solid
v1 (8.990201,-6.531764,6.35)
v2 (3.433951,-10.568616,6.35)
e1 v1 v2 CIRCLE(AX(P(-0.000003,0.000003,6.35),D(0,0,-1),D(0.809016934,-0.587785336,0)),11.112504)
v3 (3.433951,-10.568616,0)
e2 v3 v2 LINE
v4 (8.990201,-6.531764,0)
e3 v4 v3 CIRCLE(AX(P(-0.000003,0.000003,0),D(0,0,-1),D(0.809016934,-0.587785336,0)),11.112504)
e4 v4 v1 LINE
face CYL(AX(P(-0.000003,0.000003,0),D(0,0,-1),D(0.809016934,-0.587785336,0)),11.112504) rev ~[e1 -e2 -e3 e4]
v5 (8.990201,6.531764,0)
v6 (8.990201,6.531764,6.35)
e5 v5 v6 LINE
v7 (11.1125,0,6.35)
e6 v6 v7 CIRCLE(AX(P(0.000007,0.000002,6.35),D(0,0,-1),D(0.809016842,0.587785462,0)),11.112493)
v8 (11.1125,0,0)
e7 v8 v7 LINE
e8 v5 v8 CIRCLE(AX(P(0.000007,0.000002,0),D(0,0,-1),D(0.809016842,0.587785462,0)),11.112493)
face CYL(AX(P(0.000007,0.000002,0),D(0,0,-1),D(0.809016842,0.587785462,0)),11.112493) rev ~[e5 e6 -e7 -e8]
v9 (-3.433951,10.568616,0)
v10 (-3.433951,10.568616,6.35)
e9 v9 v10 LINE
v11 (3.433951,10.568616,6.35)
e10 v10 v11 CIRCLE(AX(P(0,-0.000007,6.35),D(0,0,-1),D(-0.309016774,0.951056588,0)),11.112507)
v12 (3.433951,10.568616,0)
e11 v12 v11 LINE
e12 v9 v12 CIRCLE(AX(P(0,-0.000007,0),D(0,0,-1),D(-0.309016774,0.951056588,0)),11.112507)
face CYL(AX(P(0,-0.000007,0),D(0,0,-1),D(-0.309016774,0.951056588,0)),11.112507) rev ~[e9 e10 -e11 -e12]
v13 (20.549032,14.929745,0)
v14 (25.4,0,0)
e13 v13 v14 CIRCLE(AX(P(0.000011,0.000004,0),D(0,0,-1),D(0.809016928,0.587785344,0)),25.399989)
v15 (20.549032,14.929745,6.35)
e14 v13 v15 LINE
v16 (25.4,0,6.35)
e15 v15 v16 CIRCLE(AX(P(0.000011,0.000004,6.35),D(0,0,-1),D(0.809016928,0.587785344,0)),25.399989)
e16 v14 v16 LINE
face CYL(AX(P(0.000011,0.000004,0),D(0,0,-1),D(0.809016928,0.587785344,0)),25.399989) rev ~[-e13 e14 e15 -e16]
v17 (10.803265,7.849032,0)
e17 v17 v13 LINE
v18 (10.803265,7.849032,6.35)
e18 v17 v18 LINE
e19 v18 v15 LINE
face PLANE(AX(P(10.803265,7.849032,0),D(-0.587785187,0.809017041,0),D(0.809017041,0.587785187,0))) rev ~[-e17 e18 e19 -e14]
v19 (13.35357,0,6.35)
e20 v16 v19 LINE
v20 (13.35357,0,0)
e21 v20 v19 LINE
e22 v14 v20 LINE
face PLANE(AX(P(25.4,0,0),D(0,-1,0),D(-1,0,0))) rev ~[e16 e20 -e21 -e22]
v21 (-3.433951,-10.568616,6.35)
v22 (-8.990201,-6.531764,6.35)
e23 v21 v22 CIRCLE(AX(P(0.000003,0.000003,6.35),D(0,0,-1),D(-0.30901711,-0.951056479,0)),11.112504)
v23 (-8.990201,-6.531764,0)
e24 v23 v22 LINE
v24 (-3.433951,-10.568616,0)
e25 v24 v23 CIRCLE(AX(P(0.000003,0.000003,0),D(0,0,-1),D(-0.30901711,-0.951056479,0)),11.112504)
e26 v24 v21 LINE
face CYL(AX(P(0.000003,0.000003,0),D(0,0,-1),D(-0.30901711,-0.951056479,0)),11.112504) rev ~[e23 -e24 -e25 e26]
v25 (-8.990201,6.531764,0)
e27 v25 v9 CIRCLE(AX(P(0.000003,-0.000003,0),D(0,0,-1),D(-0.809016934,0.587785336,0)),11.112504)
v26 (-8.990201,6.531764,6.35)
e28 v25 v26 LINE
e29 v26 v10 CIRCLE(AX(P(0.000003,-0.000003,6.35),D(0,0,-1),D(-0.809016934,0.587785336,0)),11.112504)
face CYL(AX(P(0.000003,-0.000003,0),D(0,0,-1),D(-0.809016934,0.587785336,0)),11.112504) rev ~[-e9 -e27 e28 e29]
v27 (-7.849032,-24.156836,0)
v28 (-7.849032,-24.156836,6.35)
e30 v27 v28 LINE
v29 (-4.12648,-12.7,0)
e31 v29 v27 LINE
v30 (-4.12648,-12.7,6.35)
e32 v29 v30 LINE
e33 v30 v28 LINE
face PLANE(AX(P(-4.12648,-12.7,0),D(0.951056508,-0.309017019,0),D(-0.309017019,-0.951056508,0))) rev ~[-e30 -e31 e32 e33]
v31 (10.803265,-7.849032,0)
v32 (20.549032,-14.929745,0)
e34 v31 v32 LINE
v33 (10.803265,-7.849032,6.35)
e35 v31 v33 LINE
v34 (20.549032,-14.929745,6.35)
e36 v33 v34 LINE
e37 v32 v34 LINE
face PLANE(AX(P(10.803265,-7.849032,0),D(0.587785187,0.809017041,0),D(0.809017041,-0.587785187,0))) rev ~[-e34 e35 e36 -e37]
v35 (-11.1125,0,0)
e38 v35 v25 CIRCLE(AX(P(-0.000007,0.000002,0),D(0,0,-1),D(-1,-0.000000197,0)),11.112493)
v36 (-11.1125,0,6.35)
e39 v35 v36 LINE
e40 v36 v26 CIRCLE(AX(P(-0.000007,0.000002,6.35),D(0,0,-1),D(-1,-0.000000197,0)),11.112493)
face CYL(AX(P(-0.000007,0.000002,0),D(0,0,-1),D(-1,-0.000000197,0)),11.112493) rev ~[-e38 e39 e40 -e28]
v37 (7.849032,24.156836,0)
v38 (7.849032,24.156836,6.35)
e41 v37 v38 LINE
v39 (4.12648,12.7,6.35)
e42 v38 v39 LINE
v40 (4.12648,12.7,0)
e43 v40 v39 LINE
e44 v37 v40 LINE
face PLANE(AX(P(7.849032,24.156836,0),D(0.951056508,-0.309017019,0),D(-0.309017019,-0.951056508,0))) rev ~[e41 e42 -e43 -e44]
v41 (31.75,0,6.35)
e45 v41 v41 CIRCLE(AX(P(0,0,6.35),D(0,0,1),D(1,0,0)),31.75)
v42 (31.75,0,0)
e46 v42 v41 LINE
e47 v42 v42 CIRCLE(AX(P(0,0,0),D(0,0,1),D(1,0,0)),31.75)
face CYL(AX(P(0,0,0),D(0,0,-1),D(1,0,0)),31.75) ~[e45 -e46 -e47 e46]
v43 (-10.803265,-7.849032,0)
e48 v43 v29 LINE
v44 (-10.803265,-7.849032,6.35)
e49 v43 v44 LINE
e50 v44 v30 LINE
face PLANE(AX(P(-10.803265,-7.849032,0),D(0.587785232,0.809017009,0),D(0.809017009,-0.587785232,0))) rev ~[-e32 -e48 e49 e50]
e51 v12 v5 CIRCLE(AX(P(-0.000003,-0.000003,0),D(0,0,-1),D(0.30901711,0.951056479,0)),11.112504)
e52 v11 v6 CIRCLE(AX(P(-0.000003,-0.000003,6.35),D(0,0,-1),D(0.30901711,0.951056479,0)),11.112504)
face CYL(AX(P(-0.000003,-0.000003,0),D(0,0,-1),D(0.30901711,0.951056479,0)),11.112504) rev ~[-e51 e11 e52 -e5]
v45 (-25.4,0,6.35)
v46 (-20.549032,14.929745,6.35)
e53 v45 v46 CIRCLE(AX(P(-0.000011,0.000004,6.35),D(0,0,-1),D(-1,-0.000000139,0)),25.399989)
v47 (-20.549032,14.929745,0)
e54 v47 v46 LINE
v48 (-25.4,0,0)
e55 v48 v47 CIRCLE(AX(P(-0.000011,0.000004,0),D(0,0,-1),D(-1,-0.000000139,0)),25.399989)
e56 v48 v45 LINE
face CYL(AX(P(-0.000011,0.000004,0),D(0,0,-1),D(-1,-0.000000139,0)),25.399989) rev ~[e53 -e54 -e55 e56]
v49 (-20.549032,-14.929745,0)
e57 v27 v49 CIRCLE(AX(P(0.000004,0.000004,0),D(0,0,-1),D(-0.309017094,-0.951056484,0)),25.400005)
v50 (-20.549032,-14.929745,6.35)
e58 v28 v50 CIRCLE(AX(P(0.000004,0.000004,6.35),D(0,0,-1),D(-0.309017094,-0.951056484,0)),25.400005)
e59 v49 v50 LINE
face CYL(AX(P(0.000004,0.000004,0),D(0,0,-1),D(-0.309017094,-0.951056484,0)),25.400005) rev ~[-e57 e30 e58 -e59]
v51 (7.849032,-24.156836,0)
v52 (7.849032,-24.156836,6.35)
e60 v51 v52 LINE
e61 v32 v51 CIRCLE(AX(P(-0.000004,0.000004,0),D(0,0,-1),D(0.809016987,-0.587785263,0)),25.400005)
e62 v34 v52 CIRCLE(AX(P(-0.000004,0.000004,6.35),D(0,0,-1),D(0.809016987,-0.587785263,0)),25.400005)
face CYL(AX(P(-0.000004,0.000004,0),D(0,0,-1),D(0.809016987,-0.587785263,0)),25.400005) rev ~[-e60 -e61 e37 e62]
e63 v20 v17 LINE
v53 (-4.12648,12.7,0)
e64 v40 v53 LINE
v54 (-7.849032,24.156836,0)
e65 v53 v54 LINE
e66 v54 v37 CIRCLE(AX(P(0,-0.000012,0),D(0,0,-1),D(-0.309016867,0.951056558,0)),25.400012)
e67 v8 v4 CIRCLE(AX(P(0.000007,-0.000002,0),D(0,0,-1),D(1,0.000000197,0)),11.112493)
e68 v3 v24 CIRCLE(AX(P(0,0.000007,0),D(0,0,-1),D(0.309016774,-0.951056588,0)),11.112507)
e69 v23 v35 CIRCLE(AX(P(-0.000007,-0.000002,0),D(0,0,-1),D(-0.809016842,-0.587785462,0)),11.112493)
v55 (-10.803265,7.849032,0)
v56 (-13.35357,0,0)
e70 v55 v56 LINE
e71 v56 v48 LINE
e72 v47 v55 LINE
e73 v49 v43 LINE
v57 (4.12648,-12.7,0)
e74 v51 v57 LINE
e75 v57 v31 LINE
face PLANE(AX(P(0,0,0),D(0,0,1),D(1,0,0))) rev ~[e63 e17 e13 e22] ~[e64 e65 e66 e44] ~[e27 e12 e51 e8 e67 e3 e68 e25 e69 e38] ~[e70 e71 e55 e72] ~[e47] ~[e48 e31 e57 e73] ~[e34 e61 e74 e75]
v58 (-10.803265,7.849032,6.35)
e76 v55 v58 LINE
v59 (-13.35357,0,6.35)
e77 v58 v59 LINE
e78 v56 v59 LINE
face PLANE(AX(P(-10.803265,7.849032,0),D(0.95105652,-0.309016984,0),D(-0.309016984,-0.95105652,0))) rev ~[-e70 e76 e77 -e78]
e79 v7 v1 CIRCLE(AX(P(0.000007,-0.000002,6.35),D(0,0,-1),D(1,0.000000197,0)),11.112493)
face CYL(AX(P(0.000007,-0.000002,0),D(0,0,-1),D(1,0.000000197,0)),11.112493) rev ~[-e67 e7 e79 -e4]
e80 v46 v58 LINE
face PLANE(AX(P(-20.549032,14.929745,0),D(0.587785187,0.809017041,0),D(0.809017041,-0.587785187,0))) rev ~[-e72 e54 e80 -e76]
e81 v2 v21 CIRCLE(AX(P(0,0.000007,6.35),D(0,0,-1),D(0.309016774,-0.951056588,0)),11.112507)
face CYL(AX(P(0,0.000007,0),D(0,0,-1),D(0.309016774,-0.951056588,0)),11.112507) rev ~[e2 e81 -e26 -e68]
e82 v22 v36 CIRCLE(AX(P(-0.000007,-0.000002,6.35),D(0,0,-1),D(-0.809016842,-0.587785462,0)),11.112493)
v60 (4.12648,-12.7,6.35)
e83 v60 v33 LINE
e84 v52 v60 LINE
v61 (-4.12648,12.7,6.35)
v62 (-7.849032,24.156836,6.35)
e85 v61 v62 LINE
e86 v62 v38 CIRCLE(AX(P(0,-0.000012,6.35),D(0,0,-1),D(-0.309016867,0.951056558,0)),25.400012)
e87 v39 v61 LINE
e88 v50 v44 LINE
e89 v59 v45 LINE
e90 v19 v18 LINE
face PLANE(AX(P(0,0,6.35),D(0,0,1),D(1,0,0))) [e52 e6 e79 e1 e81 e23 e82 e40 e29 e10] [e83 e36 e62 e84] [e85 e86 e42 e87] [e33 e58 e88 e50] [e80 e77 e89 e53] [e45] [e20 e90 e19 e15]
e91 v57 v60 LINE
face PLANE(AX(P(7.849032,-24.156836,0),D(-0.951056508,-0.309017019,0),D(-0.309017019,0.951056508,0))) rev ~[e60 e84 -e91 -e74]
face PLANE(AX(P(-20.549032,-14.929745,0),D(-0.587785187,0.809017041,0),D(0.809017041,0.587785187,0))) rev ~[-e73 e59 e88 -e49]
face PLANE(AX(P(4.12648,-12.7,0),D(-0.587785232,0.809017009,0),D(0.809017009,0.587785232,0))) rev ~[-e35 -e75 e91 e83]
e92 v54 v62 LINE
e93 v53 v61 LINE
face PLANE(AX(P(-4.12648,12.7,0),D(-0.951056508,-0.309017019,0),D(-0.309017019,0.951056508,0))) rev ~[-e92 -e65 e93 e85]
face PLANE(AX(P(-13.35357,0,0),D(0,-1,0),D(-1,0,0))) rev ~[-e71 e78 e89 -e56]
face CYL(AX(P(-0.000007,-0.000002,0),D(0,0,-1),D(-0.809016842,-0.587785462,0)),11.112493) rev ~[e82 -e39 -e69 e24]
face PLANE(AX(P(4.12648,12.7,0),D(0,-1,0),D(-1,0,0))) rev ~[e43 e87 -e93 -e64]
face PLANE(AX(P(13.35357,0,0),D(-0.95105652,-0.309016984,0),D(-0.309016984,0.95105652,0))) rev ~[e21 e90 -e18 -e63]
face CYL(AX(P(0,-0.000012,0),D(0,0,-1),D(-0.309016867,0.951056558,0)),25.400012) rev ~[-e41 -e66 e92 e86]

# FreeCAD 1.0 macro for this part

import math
import FreeCAD as App
import Part
import Sketcher
Q = App.Units.Quantity

doc = App.newDocument("Part")
body = doc.addObject("PartDesign::Body", "Body")

sketch1 = doc.addObject("Sketcher::SketchObject", "Sketch")
body.addObject(sketch1)
sketch1.AttachmentSupport = (doc.XY_Plane, [""])
sketch1.MapMode = "FlatFace"
sketch1.addGeometry(Part.Circle(App.Vector(0, 0, 0), App.Vector(0, 0, 1), 31.75), False)
sketch1.addGeometry(Part.LineSegment(App.Vector(-20.549032, -14.929745, 0), App.Vector(-10.803265, -7.849032, 0)), False)
sketch1.addGeometry(Part.LineSegment(App.Vector(-10.803265, -7.849032, 0), App.Vector(-4.12648, -12.7, 0)), False)
sketch1.addGeometry(Part.LineSegment(App.Vector(-4.12648, -12.7, 0), App.Vector(-7.849032, -24.156836, 0)), False)
sketch1.addGeometry(Part.ArcOfCircle(Part.Circle(App.Vector(0.000004, 0.000004, 0), App.Vector(0, 0, 1), 25.400005), math.radians(-143.999999), math.radians(-108.000006)), False)
sketch1.addGeometry(Part.LineSegment(App.Vector(7.849032, -24.156836, 0), App.Vector(4.12648, -12.7, 0)), False)
sketch1.addGeometry(Part.LineSegment(App.Vector(4.12648, -12.7, 0), App.Vector(10.803265, -7.849032, 0)), False)
sketch1.addGeometry(Part.LineSegment(App.Vector(10.803265, -7.849032, 0), App.Vector(20.549032, -14.929745, 0)), False)
sketch1.addGeometry(Part.ArcOfCircle(Part.Circle(App.Vector(-0.000004, 0.000004, 0), App.Vector(0, 0, 1), 25.400005), math.radians(-71.999994), math.radians(-36.000001)), False)
sketch1.addGeometry(Part.LineSegment(App.Vector(-20.549032, 14.929745, 0), App.Vector(-10.803265, 7.849032, 0)), False)
sketch1.addGeometry(Part.LineSegment(App.Vector(-10.803265, 7.849032, 0), App.Vector(-13.35357, 0, 0)), False)
sketch1.addGeometry(Part.LineSegment(App.Vector(-13.35357, 0, 0), App.Vector(-25.4, 0, 0)), False)
sketch1.addGeometry(Part.ArcOfCircle(Part.Circle(App.Vector(-0.000011, 0.000004, 0), App.Vector(0, 0, 1), 25.399989), math.radians(143.999994), math.radians(180.000008)), False)
sketch1.addGeometry(Part.ArcOfCircle(Part.Circle(App.Vector(-0.000007, 0.000002, 0), App.Vector(0, 0, 1), 11.112493), math.radians(143.999985), math.radians(180.000011)), False)
sketch1.addGeometry(Part.ArcOfCircle(Part.Circle(App.Vector(0.000003, -0.000003, 0), App.Vector(0, 0, 1), 11.112504), math.radians(108.000007), math.radians(143.999994)), False)
sketch1.addGeometry(Part.ArcOfCircle(Part.Circle(App.Vector(0, -0.000007, 0), App.Vector(0, 0, 1), 11.112507), math.radians(72.000013), math.radians(107.999987)), False)
sketch1.addGeometry(Part.ArcOfCircle(Part.Circle(App.Vector(-0.000003, -0.000003, 0), App.Vector(0, 0, 1), 11.112504), math.radians(36.000006), math.radians(71.999993)), False)
sketch1.addGeometry(Part.ArcOfCircle(Part.Circle(App.Vector(0.000007, 0.000002, 0), App.Vector(0, 0, 1), 11.112493), math.radians(-0.000011), math.radians(36.000015)), False)
sketch1.addGeometry(Part.ArcOfCircle(Part.Circle(App.Vector(0.000007, -0.000002, 0), App.Vector(0, 0, 1), 11.112493), math.radians(-36.000015), math.radians(0.000011)), False)
sketch1.addGeometry(Part.ArcOfCircle(Part.Circle(App.Vector(-0.000003, 0.000003, 0), App.Vector(0, 0, 1), 11.112504), math.radians(-71.999993), math.radians(-36.000006)), False)
sketch1.addGeometry(Part.ArcOfCircle(Part.Circle(App.Vector(0, 0.000007, 0), App.Vector(0, 0, 1), 11.112507), math.radians(-107.999987), math.radians(-72.000013)), False)
sketch1.addGeometry(Part.ArcOfCircle(Part.Circle(App.Vector(0.000003, 0.000003, 0), App.Vector(0, 0, 1), 11.112504), math.radians(-143.999994), math.radians(-108.000007)), False)
sketch1.addGeometry(Part.ArcOfCircle(Part.Circle(App.Vector(-0.000007, -0.000002, 0), App.Vector(0, 0, 1), 11.112493), math.radians(179.999989), math.radians(216.000015)), False)
sketch1.addGeometry(Part.LineSegment(App.Vector(25.4, 0, 0), App.Vector(13.35357, 0, 0)), False)
sketch1.addGeometry(Part.LineSegment(App.Vector(13.35357, 0, 0), App.Vector(10.803265, 7.849032, 0)), False)
sketch1.addGeometry(Part.LineSegment(App.Vector(10.803265, 7.849032, 0), App.Vector(20.549032, 14.929745, 0)), False)
sketch1.addGeometry(Part.ArcOfCircle(Part.Circle(App.Vector(0.000011, 0.000004, 0), App.Vector(0, 0, 1), 25.399989), math.radians(-0.000008), math.radians(36.000006)), False)
sketch1.addGeometry(Part.LineSegment(App.Vector(4.12648, 12.7, 0), App.Vector(-4.12648, 12.7, 0)), False)
sketch1.addGeometry(Part.LineSegment(App.Vector(-4.12648, 12.7, 0), App.Vector(-7.849032, 24.156836, 0)), False)
sketch1.addGeometry(Part.ArcOfCircle(Part.Circle(App.Vector(0, -0.000012, 0), App.Vector(0, 0, 1), 25.400012), math.radians(72.000008), math.radians(107.999992)), False)
sketch1.addGeometry(Part.LineSegment(App.Vector(7.849032, 24.156836, 0), App.Vector(4.12648, 12.7, 0)), False)
sketch1.addConstraint(Sketcher.Constraint("Coincident", 1, 2, 2, 1))
sketch1.addConstraint(Sketcher.Constraint("Coincident", 2, 2, 3, 1))
sketch1.addConstraint(Sketcher.Constraint("Coincident", 3, 2, 4, 2))
sketch1.addConstraint(Sketcher.Constraint("Coincident", 4, 1, 1, 1))
sketch1.addConstraint(Sketcher.Constraint("Coincident", 5, 2, 6, 1))
sketch1.addConstraint(Sketcher.Constraint("Coincident", 6, 2, 7, 1))
sketch1.addConstraint(Sketcher.Constraint("Coincident", 7, 2, 8, 2))
sketch1.addConstraint(Sketcher.Constraint("Coincident", 8, 1, 5, 1))
sketch1.addConstraint(Sketcher.Constraint("Coincident", 9, 2, 10, 1))
sketch1.addConstraint(Sketcher.Constraint("Coincident", 10, 2, 11, 1))
sketch1.addConstraint(Sketcher.Constraint("Coincident", 11, 2, 12, 2))
sketch1.addConstraint(Sketcher.Constraint("Coincident", 12, 1, 9, 1))
sketch1.addConstraint(Sketcher.Constraint("Tangent", 13, 1, 14, 2))
sketch1.addConstraint(Sketcher.Constraint("Tangent", 14, 1, 15, 2))
sketch1.addConstraint(Sketcher.Constraint("Tangent", 15, 1, 16, 2))
sketch1.addConstraint(Sketcher.Constraint("Tangent", 16, 1, 17, 2))
sketch1.addConstraint(Sketcher.Constraint("Tangent", 17, 1, 18, 2))
sketch1.addConstraint(Sketcher.Constraint("Tangent", 18, 1, 19, 2))
sketch1.addConstraint(Sketcher.Constraint("Tangent", 19, 1, 20, 2))
sketch1.addConstraint(Sketcher.Constraint("Tangent", 20, 1, 21, 2))
sketch1.addConstraint(Sketcher.Constraint("Tangent", 21, 1, 22, 2))
sketch1.addConstraint(Sketcher.Constraint("Tangent", 22, 1, 13, 2))
sketch1.addConstraint(Sketcher.Constraint("Coincident", 23, 2, 24, 1))
sketch1.addConstraint(Sketcher.Constraint("Coincident", 24, 2, 25, 1))
sketch1.addConstraint(Sketcher.Constraint("Coincident", 25, 2, 26, 2))
sketch1.addConstraint(Sketcher.Constraint("Coincident", 26, 1, 23, 1))
sketch1.addConstraint(Sketcher.Constraint("Coincident", 27, 2, 28, 1))
sketch1.addConstraint(Sketcher.Constraint("Coincident", 28, 2, 29, 2))
sketch1.addConstraint(Sketcher.Constraint("Coincident", 29, 1, 30, 1))
sketch1.addConstraint(Sketcher.Constraint("Coincident", 30, 2, 27, 1))
sketch1.addConstraint(Sketcher.Constraint("Horizontal", 11))
sketch1.addConstraint(Sketcher.Constraint("Horizontal", 23))
sketch1.addConstraint(Sketcher.Constraint("Horizontal", 27))
sketch1.addConstraint(Sketcher.Constraint("Coincident", 0, 3, -1, 1))
sketch1.addConstraint(Sketcher.Constraint("Coincident", 4, 3, -1, 1))
sketch1.addConstraint(Sketcher.Constraint("Coincident", 8, 3, -1, 1))
sketch1.addConstraint(Sketcher.Constraint("Coincident", 13, 3, -1, 1))
sketch1.addConstraint(Sketcher.Constraint("Coincident", 15, 3, -1, 1))
sketch1.addConstraint(Sketcher.Constraint("Coincident", 17, 3, -1, 1))
sketch1.addConstraint(Sketcher.Constraint("Coincident", 19, 3, -1, 1))
sketch1.addConstraint(Sketcher.Constraint("Coincident", 12, 3, 8, 3))
sketch1.addConstraint(Sketcher.Constraint("Coincident", 26, 3, 4, 3))
sketch1.addConstraint(Sketcher.Constraint("Coincident", 29, 3, 14, 3))
sketch1.addConstraint(Sketcher.Constraint("Equal", 4, 8))
sketch1.addConstraint(Sketcher.Constraint("Equal", 15, 20))
sketch1.addConstraint(Sketcher.Constraint("Equal", 12, 26))
sketch1.addConstraint(Sketcher.Constraint("Symmetric", 6, 2, 9, 2, -1, 1))
sketch1.addConstraint(Sketcher.Constraint("Symmetric", 7, 2, 12, 1, -1, 1))
sketch1.addConstraint(Sketcher.Constraint("Symmetric", 10, 2, 23, 2, -1, 1))
sketch1.addConstraint(Sketcher.Constraint("Symmetric", 1, 2, 24, 2, -1, 1))
sketch1.addConstraint(Sketcher.Constraint("Symmetric", 5, 2, 27, 2, -1, 1))
sketch1.addConstraint(Sketcher.Constraint("Symmetric", 8, 1, 28, 2, -1, 1))
sketch1.addConstraint(Sketcher.Constraint("Symmetric", 2, 2, 30, 2, -1, 1))
sketch1.addConstraint(Sketcher.Constraint("Symmetric", 1, 2, 6, 2, -2))
sketch1.addConstraint(Sketcher.Constraint("PointOnObject", 10, 2, -1))
sketch1.addConstraint(Sketcher.Constraint("PointOnObject", 17, 1, -1))
sketch1.addConstraint(Sketcher.Constraint("PointOnObject", 22, 1, -1))
sketch1.addConstraint(Sketcher.Constraint("Parallel", 1, 6))
sketch1.addConstraint(Sketcher.Constraint("Parallel", 2, 7))
sketch1.addConstraint(Sketcher.Constraint("Parallel", 3, 10))
sketch1.addConstraint(Sketcher.Constraint("Parallel", 5, 24))
sketch1.addConstraint(Sketcher.Constraint("Parallel", 6, 25))
sketch1.addConstraint(Sketcher.Constraint("Parallel", 10, 30))
sketch1.addConstraint(Sketcher.Constraint("Horizontal", 4, 1, 7, 2))
sketch1.addConstraint(Sketcher.Constraint("Horizontal", 14, 1, 15, 1))
sketch1.addConstraint(Sketcher.Constraint("Horizontal", 13, 1, 16, 1))
sketch1.addConstraint(Sketcher.Constraint("Horizontal", 19, 1, 20, 1))
sketch1.addConstraint(Sketcher.Constraint("Horizontal", 18, 1, 21, 1))
sketch1.addConstraint(Sketcher.Constraint("Vertical", 16, 1, 18, 1))
sketch1.addConstraint(Sketcher.Constraint("Vertical", 15, 1, 19, 1))
sketch1.addConstraint(Sketcher.Constraint("Equal", 1, 3))
sketch1.addConstraint(Sketcher.Constraint("Equal", 6, 10))
sketch1.addConstraint(Sketcher.Constraint("Diameter", 0, Q("2.5 in")))
sketch1.addConstraint(Sketcher.Constraint("DistanceX", 11, 2, -1, 1, Q("1 in")))
sketch1.addConstraint(Sketcher.Constraint("Angle", 1, Q("35.999995 deg")))
sketch1.addConstraint(Sketcher.Constraint("Angle", 3, Q("-108.000001 deg")))
sketch1.addConstraint(Sketcher.Constraint("Radius", 14, Q("0.4375002 in")))
sketch1.addConstraint(Sketcher.Constraint("DistanceY", 2, 2, -1, 1, Q("0.5 in")))
sketch1.addConstraint(Sketcher.Constraint("DistanceX", 13, 1, 14, 1, Q("0.21875 in")))
sketch1.addConstraint(Sketcher.Constraint("DistanceX", 13, 1, -1, 1, 8.990201))
pad1 = doc.addObject("PartDesign::Pad", "Pad")
body.addObject(pad1)
pad1.Profile = sketch1
pad1.Length = Q("0.25 in")

doc.recompute()
